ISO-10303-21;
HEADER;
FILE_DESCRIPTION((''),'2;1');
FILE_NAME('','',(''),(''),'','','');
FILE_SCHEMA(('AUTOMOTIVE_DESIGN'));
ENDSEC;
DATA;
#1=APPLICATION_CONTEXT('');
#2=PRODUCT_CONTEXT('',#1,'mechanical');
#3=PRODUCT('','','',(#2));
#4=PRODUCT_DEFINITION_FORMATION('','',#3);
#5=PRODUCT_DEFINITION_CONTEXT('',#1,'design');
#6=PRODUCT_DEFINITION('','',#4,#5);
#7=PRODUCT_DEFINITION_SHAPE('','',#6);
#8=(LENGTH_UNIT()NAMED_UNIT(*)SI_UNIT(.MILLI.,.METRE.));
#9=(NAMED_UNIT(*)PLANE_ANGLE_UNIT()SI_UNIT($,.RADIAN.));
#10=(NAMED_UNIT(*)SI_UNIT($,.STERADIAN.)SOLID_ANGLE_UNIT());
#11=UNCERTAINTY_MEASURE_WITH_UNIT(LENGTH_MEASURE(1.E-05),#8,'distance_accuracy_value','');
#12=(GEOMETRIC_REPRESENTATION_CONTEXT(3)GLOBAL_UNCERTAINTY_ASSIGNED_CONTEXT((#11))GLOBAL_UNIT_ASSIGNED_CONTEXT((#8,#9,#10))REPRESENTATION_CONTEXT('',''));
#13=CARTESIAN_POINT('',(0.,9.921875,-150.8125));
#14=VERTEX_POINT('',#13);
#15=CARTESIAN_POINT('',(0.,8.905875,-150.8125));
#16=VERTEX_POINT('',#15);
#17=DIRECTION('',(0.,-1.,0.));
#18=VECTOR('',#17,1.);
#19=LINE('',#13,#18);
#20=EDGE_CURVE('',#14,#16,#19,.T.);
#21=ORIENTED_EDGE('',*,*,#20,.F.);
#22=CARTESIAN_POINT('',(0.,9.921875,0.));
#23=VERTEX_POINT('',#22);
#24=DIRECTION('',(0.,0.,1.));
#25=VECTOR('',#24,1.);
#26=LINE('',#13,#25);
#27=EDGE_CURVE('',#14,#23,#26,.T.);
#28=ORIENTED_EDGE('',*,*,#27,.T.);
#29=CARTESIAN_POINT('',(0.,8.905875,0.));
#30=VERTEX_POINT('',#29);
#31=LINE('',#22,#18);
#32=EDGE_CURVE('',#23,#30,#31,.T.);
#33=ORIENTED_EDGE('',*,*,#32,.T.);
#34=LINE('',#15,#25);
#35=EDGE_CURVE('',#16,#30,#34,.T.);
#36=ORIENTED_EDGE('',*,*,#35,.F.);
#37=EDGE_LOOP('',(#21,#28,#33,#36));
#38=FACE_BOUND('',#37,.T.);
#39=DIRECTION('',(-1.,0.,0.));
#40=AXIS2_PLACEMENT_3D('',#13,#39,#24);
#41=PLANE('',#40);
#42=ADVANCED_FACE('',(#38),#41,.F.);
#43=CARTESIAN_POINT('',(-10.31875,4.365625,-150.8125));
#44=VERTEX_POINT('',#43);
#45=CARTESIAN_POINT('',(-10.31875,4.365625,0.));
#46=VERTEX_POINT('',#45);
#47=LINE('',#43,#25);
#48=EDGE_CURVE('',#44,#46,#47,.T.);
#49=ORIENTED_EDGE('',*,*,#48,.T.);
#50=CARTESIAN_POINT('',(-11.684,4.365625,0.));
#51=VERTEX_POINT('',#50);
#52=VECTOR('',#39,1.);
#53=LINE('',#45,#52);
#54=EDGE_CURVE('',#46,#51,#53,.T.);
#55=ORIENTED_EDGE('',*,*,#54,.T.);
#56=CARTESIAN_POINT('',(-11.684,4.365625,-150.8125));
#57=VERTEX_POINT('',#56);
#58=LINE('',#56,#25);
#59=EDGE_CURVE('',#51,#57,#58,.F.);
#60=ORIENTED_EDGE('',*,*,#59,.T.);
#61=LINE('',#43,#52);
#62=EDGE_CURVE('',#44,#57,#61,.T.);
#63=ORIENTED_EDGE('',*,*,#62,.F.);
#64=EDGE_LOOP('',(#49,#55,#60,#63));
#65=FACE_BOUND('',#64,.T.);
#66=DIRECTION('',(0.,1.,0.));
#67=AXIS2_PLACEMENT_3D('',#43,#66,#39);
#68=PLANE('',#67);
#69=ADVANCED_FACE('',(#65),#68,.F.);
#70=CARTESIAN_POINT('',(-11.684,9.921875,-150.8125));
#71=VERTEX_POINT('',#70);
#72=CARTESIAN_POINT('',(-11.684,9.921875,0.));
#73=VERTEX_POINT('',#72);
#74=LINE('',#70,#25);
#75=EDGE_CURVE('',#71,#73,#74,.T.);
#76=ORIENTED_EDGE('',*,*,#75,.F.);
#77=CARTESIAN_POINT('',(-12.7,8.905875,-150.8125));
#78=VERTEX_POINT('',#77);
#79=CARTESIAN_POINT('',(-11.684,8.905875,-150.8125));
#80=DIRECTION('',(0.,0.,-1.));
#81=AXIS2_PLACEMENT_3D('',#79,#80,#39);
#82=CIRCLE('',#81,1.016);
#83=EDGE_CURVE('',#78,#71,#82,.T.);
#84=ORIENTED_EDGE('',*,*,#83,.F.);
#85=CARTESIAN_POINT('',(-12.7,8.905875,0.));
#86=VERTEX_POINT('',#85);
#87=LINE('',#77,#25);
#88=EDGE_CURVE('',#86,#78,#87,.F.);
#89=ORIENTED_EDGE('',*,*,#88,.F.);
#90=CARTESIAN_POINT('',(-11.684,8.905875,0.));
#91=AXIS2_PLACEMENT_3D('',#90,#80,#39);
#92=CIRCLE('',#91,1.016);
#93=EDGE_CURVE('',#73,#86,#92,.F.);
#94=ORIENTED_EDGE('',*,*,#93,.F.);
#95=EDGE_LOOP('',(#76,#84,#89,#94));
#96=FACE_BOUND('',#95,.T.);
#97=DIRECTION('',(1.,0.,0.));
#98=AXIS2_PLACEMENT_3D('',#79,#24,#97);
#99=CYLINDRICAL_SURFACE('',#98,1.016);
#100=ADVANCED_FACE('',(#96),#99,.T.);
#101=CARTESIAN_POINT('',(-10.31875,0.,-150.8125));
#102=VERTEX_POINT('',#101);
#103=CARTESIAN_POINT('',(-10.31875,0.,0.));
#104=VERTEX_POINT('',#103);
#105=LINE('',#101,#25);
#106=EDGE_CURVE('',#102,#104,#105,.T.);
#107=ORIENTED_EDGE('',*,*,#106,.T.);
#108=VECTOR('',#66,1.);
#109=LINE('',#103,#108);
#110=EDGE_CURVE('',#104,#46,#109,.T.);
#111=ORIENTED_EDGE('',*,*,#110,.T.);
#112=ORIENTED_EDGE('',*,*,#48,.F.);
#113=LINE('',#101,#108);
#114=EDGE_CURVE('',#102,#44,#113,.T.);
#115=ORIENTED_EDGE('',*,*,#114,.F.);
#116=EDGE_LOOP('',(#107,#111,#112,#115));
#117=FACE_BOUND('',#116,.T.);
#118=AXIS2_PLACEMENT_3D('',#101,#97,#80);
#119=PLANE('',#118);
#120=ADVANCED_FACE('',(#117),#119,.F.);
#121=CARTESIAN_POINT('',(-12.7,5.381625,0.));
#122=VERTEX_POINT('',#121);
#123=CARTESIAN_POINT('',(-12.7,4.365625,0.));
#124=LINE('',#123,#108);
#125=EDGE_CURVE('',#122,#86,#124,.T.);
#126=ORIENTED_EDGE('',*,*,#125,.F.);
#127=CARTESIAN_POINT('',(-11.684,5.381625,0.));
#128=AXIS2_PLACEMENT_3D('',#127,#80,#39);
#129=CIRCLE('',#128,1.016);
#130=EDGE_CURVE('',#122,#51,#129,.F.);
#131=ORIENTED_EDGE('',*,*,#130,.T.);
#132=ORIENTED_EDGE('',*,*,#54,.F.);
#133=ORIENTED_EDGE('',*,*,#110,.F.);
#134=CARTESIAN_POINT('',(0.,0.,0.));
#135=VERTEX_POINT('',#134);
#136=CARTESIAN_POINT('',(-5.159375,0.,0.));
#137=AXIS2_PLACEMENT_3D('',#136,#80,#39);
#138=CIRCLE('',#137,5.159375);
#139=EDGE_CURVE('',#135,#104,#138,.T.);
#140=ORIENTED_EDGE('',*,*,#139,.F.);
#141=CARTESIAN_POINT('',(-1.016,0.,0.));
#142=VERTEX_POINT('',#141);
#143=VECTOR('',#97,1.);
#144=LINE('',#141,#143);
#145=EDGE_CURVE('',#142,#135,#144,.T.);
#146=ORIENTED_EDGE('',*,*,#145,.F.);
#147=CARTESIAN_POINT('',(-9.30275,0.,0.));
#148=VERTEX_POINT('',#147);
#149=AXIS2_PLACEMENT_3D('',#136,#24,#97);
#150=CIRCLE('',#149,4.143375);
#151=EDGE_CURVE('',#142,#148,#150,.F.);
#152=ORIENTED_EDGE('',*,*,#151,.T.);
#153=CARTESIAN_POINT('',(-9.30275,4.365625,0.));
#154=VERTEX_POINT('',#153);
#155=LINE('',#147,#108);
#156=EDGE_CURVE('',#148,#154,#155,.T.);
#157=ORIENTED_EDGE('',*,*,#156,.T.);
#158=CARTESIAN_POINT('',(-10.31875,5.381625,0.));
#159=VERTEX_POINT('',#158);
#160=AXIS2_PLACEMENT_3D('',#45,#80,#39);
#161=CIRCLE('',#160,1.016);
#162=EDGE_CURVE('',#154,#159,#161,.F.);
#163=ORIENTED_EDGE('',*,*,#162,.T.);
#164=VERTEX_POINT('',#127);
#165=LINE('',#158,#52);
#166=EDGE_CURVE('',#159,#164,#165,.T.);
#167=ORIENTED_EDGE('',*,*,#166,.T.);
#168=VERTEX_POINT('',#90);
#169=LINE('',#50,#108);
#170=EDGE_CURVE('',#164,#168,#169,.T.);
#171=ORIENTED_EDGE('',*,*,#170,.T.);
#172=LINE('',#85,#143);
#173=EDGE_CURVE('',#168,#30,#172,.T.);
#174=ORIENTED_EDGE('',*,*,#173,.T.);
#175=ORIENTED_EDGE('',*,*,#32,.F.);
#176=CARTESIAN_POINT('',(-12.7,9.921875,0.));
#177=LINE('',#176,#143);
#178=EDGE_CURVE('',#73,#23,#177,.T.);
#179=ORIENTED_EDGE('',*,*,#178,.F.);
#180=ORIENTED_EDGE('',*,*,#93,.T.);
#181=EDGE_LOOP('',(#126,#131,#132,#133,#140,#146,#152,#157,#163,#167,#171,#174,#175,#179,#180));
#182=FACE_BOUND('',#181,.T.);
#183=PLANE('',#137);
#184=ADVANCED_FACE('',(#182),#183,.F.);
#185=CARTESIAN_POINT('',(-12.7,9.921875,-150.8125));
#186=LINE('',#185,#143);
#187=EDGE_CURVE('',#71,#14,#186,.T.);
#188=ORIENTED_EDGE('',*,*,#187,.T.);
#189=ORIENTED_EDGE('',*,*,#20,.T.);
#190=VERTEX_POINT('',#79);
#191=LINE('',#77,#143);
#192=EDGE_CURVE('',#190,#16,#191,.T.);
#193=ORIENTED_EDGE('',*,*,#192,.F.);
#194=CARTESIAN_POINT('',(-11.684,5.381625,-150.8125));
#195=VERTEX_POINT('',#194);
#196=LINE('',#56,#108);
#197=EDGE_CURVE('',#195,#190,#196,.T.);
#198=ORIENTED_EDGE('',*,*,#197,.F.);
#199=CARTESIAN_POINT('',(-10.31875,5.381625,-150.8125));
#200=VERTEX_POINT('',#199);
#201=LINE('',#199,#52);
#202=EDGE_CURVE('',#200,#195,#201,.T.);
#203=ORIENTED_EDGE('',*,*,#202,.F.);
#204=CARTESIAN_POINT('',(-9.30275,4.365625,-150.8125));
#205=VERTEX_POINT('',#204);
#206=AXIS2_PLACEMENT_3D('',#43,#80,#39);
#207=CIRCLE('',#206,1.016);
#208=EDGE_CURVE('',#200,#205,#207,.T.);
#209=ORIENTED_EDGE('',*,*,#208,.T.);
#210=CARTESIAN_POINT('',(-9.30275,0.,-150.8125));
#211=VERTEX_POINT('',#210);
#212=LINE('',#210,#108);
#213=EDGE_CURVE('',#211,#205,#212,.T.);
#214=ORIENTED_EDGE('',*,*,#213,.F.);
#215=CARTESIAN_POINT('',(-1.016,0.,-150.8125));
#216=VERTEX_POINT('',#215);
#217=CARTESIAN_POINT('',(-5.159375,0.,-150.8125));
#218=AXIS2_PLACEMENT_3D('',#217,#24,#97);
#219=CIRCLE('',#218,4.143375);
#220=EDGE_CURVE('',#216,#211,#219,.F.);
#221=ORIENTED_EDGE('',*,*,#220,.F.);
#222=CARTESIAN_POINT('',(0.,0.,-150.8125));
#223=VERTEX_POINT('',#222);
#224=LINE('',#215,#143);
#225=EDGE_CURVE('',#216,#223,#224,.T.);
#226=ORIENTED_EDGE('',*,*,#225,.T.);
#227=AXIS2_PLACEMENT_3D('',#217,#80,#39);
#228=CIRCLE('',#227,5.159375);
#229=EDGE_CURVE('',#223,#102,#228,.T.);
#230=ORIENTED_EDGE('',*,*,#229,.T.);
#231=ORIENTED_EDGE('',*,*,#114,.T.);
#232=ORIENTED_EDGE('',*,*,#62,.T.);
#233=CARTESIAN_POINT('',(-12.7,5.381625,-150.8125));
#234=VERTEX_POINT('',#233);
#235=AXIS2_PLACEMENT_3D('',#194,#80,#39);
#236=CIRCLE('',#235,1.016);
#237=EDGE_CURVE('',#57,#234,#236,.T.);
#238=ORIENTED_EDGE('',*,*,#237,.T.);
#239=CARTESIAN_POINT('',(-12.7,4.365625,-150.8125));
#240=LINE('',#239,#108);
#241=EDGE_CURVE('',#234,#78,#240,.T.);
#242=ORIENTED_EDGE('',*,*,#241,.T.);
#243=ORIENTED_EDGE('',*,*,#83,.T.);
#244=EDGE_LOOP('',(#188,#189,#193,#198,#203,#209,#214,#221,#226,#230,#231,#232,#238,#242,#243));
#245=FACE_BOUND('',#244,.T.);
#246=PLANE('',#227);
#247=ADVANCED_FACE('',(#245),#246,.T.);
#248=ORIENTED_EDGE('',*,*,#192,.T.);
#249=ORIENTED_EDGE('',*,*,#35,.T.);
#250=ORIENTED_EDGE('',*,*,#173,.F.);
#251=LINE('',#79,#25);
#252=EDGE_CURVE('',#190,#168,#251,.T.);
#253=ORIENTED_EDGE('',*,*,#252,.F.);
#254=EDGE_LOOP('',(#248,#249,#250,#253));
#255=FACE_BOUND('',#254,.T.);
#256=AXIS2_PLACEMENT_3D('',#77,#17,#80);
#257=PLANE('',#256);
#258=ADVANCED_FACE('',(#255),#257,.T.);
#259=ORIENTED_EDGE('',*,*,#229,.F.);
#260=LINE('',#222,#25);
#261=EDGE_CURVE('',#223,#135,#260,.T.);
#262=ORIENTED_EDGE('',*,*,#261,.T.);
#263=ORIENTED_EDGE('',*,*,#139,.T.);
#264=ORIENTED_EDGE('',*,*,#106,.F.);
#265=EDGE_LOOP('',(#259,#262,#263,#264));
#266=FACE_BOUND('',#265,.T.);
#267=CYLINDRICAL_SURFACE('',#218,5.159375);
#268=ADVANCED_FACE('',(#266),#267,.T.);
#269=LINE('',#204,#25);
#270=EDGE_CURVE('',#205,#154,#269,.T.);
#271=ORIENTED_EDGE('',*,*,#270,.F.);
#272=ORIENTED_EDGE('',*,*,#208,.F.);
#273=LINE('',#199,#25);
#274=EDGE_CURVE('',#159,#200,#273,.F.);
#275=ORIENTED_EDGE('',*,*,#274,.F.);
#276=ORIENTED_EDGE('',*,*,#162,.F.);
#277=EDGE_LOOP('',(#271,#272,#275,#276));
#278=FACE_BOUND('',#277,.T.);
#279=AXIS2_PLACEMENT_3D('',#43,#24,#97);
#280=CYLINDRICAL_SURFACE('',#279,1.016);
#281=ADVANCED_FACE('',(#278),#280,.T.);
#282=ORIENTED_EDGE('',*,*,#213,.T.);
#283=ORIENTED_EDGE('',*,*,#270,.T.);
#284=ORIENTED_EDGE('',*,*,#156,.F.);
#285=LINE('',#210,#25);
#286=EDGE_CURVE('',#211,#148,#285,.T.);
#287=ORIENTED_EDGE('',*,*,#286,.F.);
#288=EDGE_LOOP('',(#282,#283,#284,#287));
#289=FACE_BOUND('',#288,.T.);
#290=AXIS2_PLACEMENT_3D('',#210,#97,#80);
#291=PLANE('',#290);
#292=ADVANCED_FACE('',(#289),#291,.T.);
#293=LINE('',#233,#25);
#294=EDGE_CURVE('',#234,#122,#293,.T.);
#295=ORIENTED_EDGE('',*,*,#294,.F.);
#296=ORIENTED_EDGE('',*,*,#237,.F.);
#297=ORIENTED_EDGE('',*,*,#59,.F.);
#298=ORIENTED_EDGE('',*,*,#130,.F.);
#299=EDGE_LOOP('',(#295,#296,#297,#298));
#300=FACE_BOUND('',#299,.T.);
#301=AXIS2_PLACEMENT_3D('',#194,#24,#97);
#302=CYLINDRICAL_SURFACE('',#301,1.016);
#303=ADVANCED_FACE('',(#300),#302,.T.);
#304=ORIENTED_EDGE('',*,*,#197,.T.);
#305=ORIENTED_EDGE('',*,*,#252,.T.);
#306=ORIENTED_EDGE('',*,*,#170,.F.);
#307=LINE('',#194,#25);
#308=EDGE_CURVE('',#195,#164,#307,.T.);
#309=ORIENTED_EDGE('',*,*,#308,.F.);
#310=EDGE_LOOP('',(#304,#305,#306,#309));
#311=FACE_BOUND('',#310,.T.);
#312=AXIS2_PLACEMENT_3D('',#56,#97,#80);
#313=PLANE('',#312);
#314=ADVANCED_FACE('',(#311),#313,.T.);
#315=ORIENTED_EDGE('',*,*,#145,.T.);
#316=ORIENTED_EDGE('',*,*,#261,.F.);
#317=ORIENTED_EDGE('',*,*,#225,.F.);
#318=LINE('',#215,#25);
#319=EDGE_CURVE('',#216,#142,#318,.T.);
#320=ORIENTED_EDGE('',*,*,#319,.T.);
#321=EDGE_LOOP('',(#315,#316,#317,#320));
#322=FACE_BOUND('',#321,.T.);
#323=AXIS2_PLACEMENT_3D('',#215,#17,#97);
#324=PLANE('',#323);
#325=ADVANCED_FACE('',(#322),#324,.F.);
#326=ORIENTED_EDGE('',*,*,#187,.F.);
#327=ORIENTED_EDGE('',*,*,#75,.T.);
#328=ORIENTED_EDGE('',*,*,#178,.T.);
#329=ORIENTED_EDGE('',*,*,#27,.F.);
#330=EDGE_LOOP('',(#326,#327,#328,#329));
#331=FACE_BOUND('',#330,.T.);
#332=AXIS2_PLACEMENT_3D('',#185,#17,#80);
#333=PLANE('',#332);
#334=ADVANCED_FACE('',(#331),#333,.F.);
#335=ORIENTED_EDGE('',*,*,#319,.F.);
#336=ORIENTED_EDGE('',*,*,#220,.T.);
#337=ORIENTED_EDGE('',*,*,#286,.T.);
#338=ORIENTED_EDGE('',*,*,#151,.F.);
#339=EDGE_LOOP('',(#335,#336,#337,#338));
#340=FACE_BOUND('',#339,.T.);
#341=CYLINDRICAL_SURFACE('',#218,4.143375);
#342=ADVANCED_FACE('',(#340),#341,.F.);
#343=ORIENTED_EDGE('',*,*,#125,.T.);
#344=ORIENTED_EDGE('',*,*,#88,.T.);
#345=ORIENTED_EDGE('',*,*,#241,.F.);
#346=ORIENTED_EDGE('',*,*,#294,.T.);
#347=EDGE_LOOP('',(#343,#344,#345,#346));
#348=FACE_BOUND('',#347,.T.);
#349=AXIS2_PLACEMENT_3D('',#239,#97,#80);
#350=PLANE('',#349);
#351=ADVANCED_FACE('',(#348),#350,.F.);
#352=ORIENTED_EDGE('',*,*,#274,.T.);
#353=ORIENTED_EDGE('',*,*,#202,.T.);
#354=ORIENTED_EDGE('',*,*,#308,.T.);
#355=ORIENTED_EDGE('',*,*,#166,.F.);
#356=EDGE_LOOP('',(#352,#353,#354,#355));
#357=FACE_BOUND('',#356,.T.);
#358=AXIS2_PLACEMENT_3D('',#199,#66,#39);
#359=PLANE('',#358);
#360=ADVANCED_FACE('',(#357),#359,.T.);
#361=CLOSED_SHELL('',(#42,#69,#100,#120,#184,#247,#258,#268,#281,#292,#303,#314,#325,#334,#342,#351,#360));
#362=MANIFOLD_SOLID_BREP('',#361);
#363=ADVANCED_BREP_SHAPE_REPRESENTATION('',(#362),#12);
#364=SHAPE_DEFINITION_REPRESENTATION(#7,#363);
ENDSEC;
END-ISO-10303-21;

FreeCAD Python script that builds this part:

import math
import FreeCAD as App
import Part
import Sketcher

V = App.Vector
Q = App.Units.Quantity


def edges_at(feature, points):
    """Names of the edges that pass closest to the given points."""
    edges = feature.Shape.Edges
    near = lambda p: min(range(len(edges)), key=lambda i: edges[i].distToShape(Part.Vertex(*p))[0])
    return sorted({f"Edge{near(p) + 1}" for p in points})

doc = App.newDocument("Part")
body = doc.addObject("PartDesign::Body", "Body")

# Sketch on XY plane
sketch1 = body.newObject("Sketcher::SketchObject", "Sketch")
sketch1.AttachmentSupport = (doc.getObject("XY_Plane"), [""])
sketch1.MapMode = "FlatFace"
sketch1.addGeometry(Part.ArcOfCircle(Part.Circle(V(-5.2, 0, 0), V(0, 0, 1), 5.2), math.radians(180), math.radians(360)), False)
sketch1.addGeometry(Part.LineSegment(V(0, 0, 0), V(-1, 0, 0)), False)
sketch1.addGeometry(Part.ArcOfCircle(Part.Circle(V(-5.2, 0, 0), V(0, 0, 1), 4.1), math.radians(180), math.radians(360)), False)
sketch1.addGeometry(Part.LineSegment(V(-9.3, 0, 0), V(-9.3, 5.4, 0)), False)
sketch1.addGeometry(Part.LineSegment(V(-9.3, 5.4, 0), V(-11.7, 5.4, 0)), False)
sketch1.addGeometry(Part.LineSegment(V(-11.7, 5.4, 0), V(-11.7, 8.9, 0)), False)
sketch1.addGeometry(Part.LineSegment(V(-11.7, 8.9, 0), V(0, 8.9, 0)), False)
sketch1.addGeometry(Part.LineSegment(V(0, 8.9, 0), V(0, 9.9, 0)), False)
sketch1.addGeometry(Part.LineSegment(V(0, 9.9, 0), V(-12.7, 9.9, 0)), False)
sketch1.addGeometry(Part.LineSegment(V(-12.7, 9.9, 0), V(-12.7, 4.4, 0)), False)
sketch1.addGeometry(Part.LineSegment(V(-12.7, 4.4, 0), V(-10.3, 4.4, 0)), False)
sketch1.addGeometry(Part.LineSegment(V(-10.3, 4.4, 0), V(-10.3, 0, 0)), False)
sketch1.addConstraint(Sketcher.Constraint("Coincident", 0, 2, 1, 1))
sketch1.addConstraint(Sketcher.Constraint("Coincident", 1, 2, 2, 2))
sketch1.addConstraint(Sketcher.Constraint("Tangent", 2, 1, 3, 1))
sketch1.addConstraint(Sketcher.Constraint("Coincident", 3, 2, 4, 1))
sketch1.addConstraint(Sketcher.Constraint("Coincident", 4, 2, 5, 1))
sketch1.addConstraint(Sketcher.Constraint("Coincident", 5, 2, 6, 1))
sketch1.addConstraint(Sketcher.Constraint("Coincident", 6, 2, 7, 1))
sketch1.addConstraint(Sketcher.Constraint("Coincident", 7, 2, 8, 1))
sketch1.addConstraint(Sketcher.Constraint("Coincident", 8, 2, 9, 1))
sketch1.addConstraint(Sketcher.Constraint("Coincident", 9, 2, 10, 1))
sketch1.addConstraint(Sketcher.Constraint("Coincident", 10, 2, 11, 1))
sketch1.addConstraint(Sketcher.Constraint("Tangent", 11, 2, 0, 1))
sketch1.addConstraint(Sketcher.Constraint("Horizontal", 1))
sketch1.addConstraint(Sketcher.Constraint("Vertical", 3))
sketch1.addConstraint(Sketcher.Constraint("Horizontal", 4))
sketch1.addConstraint(Sketcher.Constraint("Vertical", 5))
sketch1.addConstraint(Sketcher.Constraint("Horizontal", 6))
sketch1.addConstraint(Sketcher.Constraint("Vertical", 7))
sketch1.addConstraint(Sketcher.Constraint("Horizontal", 8))
sketch1.addConstraint(Sketcher.Constraint("Vertical", 9))
sketch1.addConstraint(Sketcher.Constraint("Horizontal", 10))
sketch1.addConstraint(Sketcher.Constraint("Vertical", 11))
sketch1.addConstraint(Sketcher.Constraint("Coincident", 0, 2, -1, 1))
sketch1.addConstraint(Sketcher.Constraint("Coincident", 2, 3, 0, 3))
sketch1.addConstraint(Sketcher.Constraint("PointOnObject", 0, 3, -1))
sketch1.addConstraint(Sketcher.Constraint("PointOnObject", 6, 2, -2))
sketch1.addConstraint(Sketcher.Constraint("Equal", 4, 10))
sketch1.addConstraint(Sketcher.Constraint("Equal", 1, 7))
sketch1.addConstraint(Sketcher.Constraint("DistanceX", 8, 2, 8, 1, Q("0.5 in")))
sketch1.addConstraint(Sketcher.Constraint("Radius", 0, Q("0.203125 in")))
sketch1.addConstraint(Sketcher.Constraint("DistanceX", 1, 2, 1, 1, Q("0.04 in")))
sketch1.addConstraint(Sketcher.Constraint("DistanceY", 9, 2, 9, 1, Q("0.21875 in")))
sketch1.addConstraint(Sketcher.Constraint("DistanceY", 11, 2, 11, 1, Q("0.171875 in")))
sketch1.addConstraint(Sketcher.Constraint("DistanceY", 9, 2, 4, 2, Q("0.04 in")))
pad1 = body.newObject("PartDesign::Pad", "Pad")
pad1.Profile = sketch1
pad1.Length = Q("5.9375 in")
pad1.Reversed = True
doc.recompute()

fillet = body.newObject("PartDesign::Fillet", "Fillet")
fillet.Base = (pad1, edges_at(pad1, [(-9.303, 5.382, -75.406), (-12.7, 4.366, -75.406), (-12.7, 9.922, -75.406)]))
fillet.Radius = Q("0.04 in")

doc.recompute()
